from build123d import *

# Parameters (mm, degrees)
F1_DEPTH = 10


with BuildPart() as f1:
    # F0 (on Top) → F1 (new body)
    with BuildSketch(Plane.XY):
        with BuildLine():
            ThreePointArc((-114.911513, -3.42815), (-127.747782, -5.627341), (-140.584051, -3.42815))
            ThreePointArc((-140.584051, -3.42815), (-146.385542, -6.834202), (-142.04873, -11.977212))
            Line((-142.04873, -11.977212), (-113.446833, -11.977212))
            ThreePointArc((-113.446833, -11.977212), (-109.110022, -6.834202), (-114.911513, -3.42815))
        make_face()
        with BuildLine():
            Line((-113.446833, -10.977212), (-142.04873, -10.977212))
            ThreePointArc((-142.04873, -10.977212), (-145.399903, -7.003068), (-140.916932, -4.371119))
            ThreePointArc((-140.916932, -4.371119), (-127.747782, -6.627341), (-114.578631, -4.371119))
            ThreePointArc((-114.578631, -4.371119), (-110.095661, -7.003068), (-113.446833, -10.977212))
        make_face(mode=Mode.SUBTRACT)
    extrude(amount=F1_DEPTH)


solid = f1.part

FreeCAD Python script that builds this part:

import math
import FreeCAD as App
import Part
import Sketcher
from FreeCAD import Vector
Q = App.Units.Quantity

doc = App.newDocument("Part")
body = doc.addObject("PartDesign::Body", "Body")

sketch1 = body.newObject("Sketcher::SketchObject", "Sketch")
sketch1.AttachmentSupport = (doc.getObject("XY_Plane"), [""])
sketch1.MapMode = "FlatFace"
sketch1.addGeometry([
    Part.ArcOfCircle(Part.Circle(Vector(-127.747782, 32.933712, 0), Vector(0, 0, 1), 38.561053), math.radians(-109.443777), math.radians(-70.556223)),
    Part.ArcOfCircle(Part.Circle(Vector(-142.04873, -7.577212, 0), Vector(0, 0, 1), 4.4), math.radians(70.556227), math.radians(270.000003)),
    Part.LineSegment(Vector(-142.04873, -11.977212, 0), Vector(-113.446833, -11.977212, 0)),
    Part.ArcOfCircle(Part.Circle(Vector(-113.446834, -7.577212, 0), Vector(0, 0, 1), 4.4), math.radians(-89.99999), math.radians(109.443773)),
    Part.ArcOfCircle(Part.Circle(Vector(-113.446834, -7.577212, 0), Vector(0, 0, 1), 3.4), math.radians(-89.999991), math.radians(109.443772)),
    Part.LineSegment(Vector(-113.446833, -10.977212, 0), Vector(-142.04873, -10.977212, 0)),
    Part.ArcOfCircle(Part.Circle(Vector(-142.04873, -7.577212, 0), Vector(0, 0, 1), 3.4), math.radians(70.556214), math.radians(270.000005)),
    Part.ArcOfCircle(Part.Circle(Vector(-127.747782, 32.933718, 0), Vector(0, 0, 1), 39.561059), math.radians(-109.443773), math.radians(-70.556227)),
], False)
sketch1.addConstraint([
    Sketcher.Constraint("Tangent", 0, 1, 1, 1),
    Sketcher.Constraint("Tangent", 1, 2, 2, 1),
    Sketcher.Constraint("Tangent", 2, 2, 3, 1),
    Sketcher.Constraint("Tangent", 3, 2, 0, 2),
    Sketcher.Constraint("Tangent", 4, 1, 5, 1),
    Sketcher.Constraint("Tangent", 5, 2, 6, 2),
    Sketcher.Constraint("Tangent", 6, 1, 7, 1),
    Sketcher.Constraint("Tangent", 7, 2, 4, 2),
    Sketcher.Constraint("Horizontal", 2),
    Sketcher.Constraint("Horizontal", 5),
    Sketcher.Constraint("Coincident", 4, 3, 3, 3),
    Sketcher.Constraint("Coincident", 6, 3, 1, 3),
    Sketcher.Constraint("Equal", 1, 3),
    Sketcher.Constraint("Radius", 1, Q("4.4 mm")),
    Sketcher.Constraint("Radius", 4, Q("3.4 mm")),
    Sketcher.Constraint("Radius", 7, Q("39.561059 mm")),
    Sketcher.Constraint("Radius", 0, Q("38.561053 mm")),
    Sketcher.Constraint("DistanceX", 1, 3, 6, 1, Q("1.131798 mm")),
    Sketcher.Constraint("DistanceX", 0, 3, -1, 1, Q("127.747782 mm")),
    Sketcher.Constraint("DistanceY", 1, 3, -1, 1, Q("7.577212 mm")),
])
pad1 = body.newObject("PartDesign::Pad", "Pad")
pad1.Profile = sketch1
pad1.Length = 10

doc.recompute()
